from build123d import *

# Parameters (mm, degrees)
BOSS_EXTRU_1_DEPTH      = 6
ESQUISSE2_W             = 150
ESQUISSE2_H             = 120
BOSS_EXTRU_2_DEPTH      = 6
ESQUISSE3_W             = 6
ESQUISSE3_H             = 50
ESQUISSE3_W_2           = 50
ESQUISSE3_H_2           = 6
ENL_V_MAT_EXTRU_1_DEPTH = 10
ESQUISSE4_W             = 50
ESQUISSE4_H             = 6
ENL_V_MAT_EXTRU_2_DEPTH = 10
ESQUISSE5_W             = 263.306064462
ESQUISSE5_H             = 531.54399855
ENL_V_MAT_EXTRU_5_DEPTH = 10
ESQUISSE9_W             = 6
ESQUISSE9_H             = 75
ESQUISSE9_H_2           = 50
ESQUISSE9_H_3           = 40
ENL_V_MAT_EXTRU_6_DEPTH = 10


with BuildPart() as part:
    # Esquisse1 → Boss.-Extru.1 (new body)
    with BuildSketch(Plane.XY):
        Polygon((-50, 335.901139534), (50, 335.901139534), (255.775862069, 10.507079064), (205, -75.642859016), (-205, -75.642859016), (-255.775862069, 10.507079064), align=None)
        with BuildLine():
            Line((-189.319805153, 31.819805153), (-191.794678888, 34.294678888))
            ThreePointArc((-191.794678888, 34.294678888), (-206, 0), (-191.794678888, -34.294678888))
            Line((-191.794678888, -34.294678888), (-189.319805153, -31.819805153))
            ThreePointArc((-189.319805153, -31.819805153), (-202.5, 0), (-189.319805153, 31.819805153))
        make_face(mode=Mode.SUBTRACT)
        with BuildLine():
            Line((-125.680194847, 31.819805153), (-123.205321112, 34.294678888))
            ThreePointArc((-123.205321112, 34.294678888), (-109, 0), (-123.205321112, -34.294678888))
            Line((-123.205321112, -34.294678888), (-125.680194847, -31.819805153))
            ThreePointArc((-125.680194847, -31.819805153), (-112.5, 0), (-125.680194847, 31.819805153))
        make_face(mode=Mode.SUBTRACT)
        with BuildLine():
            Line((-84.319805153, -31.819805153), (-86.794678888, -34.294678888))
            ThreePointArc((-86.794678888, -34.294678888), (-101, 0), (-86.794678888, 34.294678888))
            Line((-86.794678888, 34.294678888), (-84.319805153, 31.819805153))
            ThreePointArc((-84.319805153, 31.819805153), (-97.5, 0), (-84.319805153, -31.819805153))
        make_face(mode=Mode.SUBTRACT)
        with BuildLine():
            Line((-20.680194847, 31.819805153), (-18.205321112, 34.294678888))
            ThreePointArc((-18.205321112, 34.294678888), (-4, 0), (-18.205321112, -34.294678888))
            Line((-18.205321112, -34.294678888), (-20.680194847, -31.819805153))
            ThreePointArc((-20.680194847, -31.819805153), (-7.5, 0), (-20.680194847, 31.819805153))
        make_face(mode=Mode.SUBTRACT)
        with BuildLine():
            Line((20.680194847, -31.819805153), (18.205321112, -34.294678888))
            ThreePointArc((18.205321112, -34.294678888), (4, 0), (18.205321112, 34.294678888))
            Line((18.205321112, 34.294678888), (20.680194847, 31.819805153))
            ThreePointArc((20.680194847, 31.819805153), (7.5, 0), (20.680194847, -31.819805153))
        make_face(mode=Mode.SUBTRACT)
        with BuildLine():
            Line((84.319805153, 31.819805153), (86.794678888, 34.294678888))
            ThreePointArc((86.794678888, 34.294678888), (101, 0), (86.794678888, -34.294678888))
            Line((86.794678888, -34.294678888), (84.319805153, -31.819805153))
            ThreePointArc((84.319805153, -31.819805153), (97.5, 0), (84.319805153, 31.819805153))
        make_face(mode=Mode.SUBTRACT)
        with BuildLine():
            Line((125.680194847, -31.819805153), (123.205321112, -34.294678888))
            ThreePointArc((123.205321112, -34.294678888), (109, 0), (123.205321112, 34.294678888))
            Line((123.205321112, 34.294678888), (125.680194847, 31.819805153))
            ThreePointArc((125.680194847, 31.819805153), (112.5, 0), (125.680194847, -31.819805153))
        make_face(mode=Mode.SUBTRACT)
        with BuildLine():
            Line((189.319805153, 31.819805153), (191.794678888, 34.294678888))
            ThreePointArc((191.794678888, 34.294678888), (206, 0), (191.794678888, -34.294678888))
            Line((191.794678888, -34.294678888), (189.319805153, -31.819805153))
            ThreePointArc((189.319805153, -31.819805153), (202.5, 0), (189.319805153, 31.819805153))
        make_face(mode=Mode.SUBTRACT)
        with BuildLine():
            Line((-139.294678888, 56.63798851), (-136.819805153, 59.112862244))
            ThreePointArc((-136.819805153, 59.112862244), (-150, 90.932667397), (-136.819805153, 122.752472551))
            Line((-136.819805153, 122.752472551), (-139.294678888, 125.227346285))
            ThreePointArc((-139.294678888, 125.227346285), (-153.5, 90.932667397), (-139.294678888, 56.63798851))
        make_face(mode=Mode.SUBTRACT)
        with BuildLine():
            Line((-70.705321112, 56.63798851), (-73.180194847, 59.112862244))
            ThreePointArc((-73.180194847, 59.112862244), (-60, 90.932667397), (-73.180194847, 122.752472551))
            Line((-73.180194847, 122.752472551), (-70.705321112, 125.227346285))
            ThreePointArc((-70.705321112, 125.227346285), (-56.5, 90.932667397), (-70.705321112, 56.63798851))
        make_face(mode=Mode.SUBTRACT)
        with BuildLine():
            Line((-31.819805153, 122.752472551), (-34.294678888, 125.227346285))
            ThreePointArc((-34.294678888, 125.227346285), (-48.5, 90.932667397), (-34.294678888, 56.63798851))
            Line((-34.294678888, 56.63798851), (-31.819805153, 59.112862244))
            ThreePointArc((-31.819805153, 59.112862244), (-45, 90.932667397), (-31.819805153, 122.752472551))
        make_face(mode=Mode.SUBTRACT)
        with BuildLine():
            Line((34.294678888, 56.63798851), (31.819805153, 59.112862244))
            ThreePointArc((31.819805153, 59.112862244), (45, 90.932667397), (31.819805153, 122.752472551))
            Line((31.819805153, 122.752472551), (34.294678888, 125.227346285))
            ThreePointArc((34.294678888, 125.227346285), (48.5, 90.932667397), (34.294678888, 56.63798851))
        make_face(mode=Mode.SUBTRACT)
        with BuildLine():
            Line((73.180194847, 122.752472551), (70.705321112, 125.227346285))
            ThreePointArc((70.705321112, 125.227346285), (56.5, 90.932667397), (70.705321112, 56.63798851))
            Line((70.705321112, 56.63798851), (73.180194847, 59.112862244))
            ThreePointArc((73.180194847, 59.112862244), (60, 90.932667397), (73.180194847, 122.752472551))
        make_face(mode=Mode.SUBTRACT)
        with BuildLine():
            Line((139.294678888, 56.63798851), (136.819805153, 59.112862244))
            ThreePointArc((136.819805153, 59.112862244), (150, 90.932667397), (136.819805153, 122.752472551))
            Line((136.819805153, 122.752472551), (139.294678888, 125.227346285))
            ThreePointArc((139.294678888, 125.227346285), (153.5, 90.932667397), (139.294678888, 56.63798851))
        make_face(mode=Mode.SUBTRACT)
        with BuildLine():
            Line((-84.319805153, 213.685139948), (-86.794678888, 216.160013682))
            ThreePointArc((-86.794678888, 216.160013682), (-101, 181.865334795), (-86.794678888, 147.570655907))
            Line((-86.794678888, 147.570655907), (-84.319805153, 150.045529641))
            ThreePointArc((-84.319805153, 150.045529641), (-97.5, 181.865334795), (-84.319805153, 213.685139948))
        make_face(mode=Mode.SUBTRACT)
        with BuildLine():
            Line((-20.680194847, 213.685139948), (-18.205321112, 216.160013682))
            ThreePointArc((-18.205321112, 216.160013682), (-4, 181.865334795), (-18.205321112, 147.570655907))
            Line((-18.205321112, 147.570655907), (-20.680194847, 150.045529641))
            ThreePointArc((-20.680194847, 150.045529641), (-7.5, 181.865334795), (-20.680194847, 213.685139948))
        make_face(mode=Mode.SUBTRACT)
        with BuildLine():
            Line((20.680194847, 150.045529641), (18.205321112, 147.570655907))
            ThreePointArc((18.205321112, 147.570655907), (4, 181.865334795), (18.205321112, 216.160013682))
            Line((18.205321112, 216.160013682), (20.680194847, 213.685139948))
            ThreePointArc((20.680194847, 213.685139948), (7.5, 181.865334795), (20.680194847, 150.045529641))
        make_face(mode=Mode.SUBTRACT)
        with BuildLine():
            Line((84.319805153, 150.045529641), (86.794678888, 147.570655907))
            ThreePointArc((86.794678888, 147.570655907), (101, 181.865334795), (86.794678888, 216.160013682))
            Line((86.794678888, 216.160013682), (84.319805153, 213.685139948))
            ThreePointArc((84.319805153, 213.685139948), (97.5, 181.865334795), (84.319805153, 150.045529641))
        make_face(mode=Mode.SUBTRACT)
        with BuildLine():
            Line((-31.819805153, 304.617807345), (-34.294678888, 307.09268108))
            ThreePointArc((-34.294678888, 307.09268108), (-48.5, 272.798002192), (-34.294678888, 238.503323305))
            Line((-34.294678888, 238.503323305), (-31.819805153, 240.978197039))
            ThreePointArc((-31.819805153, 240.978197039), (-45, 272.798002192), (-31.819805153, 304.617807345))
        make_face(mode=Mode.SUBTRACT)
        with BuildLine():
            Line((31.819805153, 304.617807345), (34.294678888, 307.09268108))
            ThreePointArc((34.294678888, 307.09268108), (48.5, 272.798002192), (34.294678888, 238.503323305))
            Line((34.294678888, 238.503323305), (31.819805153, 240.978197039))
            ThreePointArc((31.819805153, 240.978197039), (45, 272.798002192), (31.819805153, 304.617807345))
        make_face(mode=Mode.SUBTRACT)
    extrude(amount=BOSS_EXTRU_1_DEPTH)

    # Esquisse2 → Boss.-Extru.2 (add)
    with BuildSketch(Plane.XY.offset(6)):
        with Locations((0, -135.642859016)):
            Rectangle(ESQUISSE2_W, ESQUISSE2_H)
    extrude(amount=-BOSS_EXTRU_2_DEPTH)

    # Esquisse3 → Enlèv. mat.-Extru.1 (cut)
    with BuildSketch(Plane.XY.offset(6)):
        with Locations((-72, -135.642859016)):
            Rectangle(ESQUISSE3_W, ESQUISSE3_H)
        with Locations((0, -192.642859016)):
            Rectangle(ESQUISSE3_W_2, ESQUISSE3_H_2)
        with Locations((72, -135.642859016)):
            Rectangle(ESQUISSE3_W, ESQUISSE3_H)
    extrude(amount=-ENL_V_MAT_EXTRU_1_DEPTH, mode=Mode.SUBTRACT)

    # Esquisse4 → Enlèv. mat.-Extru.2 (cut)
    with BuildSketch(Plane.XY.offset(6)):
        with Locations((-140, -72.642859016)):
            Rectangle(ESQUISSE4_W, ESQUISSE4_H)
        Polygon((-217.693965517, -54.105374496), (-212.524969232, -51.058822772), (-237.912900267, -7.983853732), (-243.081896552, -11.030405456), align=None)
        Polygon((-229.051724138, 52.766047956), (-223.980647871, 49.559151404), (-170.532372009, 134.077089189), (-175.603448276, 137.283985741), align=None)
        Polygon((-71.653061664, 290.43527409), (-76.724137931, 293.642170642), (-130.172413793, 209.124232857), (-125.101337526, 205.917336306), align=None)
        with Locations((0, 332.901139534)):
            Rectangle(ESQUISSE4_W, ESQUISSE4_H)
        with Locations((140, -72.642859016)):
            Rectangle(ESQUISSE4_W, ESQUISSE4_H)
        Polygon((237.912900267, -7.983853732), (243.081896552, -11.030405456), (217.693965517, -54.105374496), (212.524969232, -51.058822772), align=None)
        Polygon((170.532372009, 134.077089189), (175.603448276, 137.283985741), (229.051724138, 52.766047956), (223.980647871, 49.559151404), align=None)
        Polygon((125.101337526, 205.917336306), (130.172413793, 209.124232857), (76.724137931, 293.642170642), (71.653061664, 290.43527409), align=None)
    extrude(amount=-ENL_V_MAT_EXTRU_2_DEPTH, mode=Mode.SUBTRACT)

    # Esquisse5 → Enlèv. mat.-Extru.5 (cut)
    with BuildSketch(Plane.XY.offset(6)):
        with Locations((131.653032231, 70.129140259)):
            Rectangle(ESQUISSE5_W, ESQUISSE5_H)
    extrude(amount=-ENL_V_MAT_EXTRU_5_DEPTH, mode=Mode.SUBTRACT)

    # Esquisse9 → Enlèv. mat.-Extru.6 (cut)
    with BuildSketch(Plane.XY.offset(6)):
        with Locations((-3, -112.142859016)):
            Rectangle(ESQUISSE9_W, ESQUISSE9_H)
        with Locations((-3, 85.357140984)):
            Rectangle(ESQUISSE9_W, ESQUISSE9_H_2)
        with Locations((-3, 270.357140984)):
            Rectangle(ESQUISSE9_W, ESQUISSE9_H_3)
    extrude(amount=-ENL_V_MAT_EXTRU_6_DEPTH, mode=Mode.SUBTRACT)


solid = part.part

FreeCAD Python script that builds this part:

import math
import FreeCAD as App
import Part
import Sketcher
Q = App.Units.Quantity


def add_polygon(sketch, points):
    """Adds a closed chain of lines whose ends are joined by coincident constraints."""
    first, n = sketch.GeometryCount, len(points)
    for a, b in zip(points, points[1:] + points[:1]):
        sketch.addGeometry(Part.LineSegment(App.Vector(*a, 0), App.Vector(*b, 0)), False)
    for i in range(n):
        sketch.addConstraint(Sketcher.Constraint("Coincident", first + i, 2, first + (i + 1) % n, 1))

doc = App.newDocument("Part")
params = doc.addObject("Spreadsheet::Sheet", "Params")
for row, (alias, value) in enumerate([
    ("sketch1_radius", "45 mm"),
    ("sketch1_radius2", "48.5 mm"),
    ("sketch1_width", "100 mm"),
    ("sketch1_width2", "410 mm"),
    ("sketch1_length", "385 mm"),
    ("pad1_length", "6 mm"),
    ("sketch2_width", "150 mm"),
    ("sketch2_height", "120 mm"),
    ("pad2_length", "6 mm"),
    ("sketch3_width", "6 mm"),
    ("sketch3_width2", "50 mm"),
    ("pocket1_length", "10 mm"),
    ("sketch4_width", "50 mm"),
    ("sketch4_height", "6 mm"),
    ("sketch4_length", "6 mm"),
    ("sketch4_length2", "50 mm"),
    ("sketch4_length3", "100 mm"),
    ("pocket2_length", "10 mm"),
    ("pocket3_length", "10 mm"),
    ("sketch6_width", "6 mm"),
    ("sketch6_height", "75 mm"),
    ("sketch6_height2", "50 mm"),
    ("sketch6_height3", "40 mm"),
    ("pocket4_length", "10 mm"),
], start=1):
    params.set(f"A{row}", alias)
    params.set(f"B{row}", "=" + value)
    params.setAlias(f"B{row}", alias)

body = doc.addObject("PartDesign::Body", "Body")

sketch1 = body.newObject("Sketcher::SketchObject", "Sketch")
sketch1.AttachmentSupport = (doc.getObject("XY_Plane"), [""])
sketch1.MapMode = "FlatFace"
add_polygon(sketch1, [(50, 335.90114), (-50, 335.90114), (-255.775862, 10.507079), (-205, -75.642859), (205, -75.642859), (255.775862, 10.507079)])
sketch1.addGeometry(Part.LineSegment(App.Vector(189.319805, 31.819805, 0), App.Vector(191.794679, 34.294679, 0)), False)
sketch1.addGeometry(Part.ArcOfCircle(Part.Circle(App.Vector(157.5, 0, 0), App.Vector(0, 0, 1), 48.5), math.radians(-45), math.radians(45)), False)
sketch1.addGeometry(Part.LineSegment(App.Vector(191.794679, -34.294679, 0), App.Vector(189.319805, -31.819805, 0)), False)
sketch1.addGeometry(Part.ArcOfCircle(Part.Circle(App.Vector(157.5, 0, 0), App.Vector(0, 0, 1), 45), math.radians(-45), math.radians(45)), False)
sketch1.addGeometry(Part.LineSegment(App.Vector(125.680195, -31.819805, 0), App.Vector(123.205321, -34.294679, 0)), False)
sketch1.addGeometry(Part.ArcOfCircle(Part.Circle(App.Vector(157.5, 0, 0), App.Vector(0, 0, 1), 48.5), math.radians(135), math.radians(225)), False)
sketch1.addGeometry(Part.LineSegment(App.Vector(123.205321, 34.294679, 0), App.Vector(125.680195, 31.819805, 0)), False)
sketch1.addGeometry(Part.ArcOfCircle(Part.Circle(App.Vector(157.5, 0, 0), App.Vector(0, 0, 1), 45), math.radians(135), math.radians(225)), False)
sketch1.addGeometry(Part.LineSegment(App.Vector(84.319805, 31.819805, 0), App.Vector(86.794679, 34.294679, 0)), False)
sketch1.addGeometry(Part.ArcOfCircle(Part.Circle(App.Vector(52.5, 0, 0), App.Vector(0, 0, 1), 48.5), math.radians(-45), math.radians(45)), False)
sketch1.addGeometry(Part.LineSegment(App.Vector(86.794679, -34.294679, 0), App.Vector(84.319805, -31.819805, 0)), False)
sketch1.addGeometry(Part.ArcOfCircle(Part.Circle(App.Vector(52.5, 0, 0), App.Vector(0, 0, 1), 45), math.radians(-45), math.radians(45)), False)
sketch1.addGeometry(Part.LineSegment(App.Vector(20.680195, -31.819805, 0), App.Vector(18.205321, -34.294679, 0)), False)
sketch1.addGeometry(Part.ArcOfCircle(Part.Circle(App.Vector(52.5, 0, 0), App.Vector(0, 0, 1), 48.5), math.radians(135), math.radians(225)), False)
sketch1.addGeometry(Part.LineSegment(App.Vector(18.205321, 34.294679, 0), App.Vector(20.680195, 31.819805, 0)), False)
sketch1.addGeometry(Part.ArcOfCircle(Part.Circle(App.Vector(52.5, 0, 0), App.Vector(0, 0, 1), 45), math.radians(135), math.radians(225)), False)
sketch1.addGeometry(Part.LineSegment(App.Vector(139.294679, 56.637989, 0), App.Vector(136.819805, 59.112862, 0)), False)
sketch1.addGeometry(Part.ArcOfCircle(Part.Circle(App.Vector(105, 90.932667, 0), App.Vector(0, 0, 1), 45), math.radians(-45), math.radians(45)), False)
sketch1.addGeometry(Part.LineSegment(App.Vector(136.819805, 122.752473, 0), App.Vector(139.294679, 125.227346, 0)), False)
sketch1.addGeometry(Part.ArcOfCircle(Part.Circle(App.Vector(105, 90.932667, 0), App.Vector(0, 0, 1), 48.5), math.radians(-45), math.radians(45)), False)
sketch1.addGeometry(Part.ArcOfCircle(Part.Circle(App.Vector(105, 90.932667, 0), App.Vector(0, 0, 1), 45), math.radians(135), math.radians(225)), False)
sketch1.addGeometry(Part.LineSegment(App.Vector(73.180195, 59.112862, 0), App.Vector(70.705321, 56.637989, 0)), False)
sketch1.addGeometry(Part.ArcOfCircle(Part.Circle(App.Vector(105, 90.932667, 0), App.Vector(0, 0, 1), 48.5), math.radians(135), math.radians(225)), False)
sketch1.addGeometry(Part.LineSegment(App.Vector(70.705321, 125.227346, 0), App.Vector(73.180195, 122.752473, 0)), False)
sketch1.addGeometry(Part.LineSegment(App.Vector(34.294679, 56.637989, 0), App.Vector(31.819805, 59.112862, 0)), False)
sketch1.addGeometry(Part.ArcOfCircle(Part.Circle(App.Vector(0, 90.932667, 0), App.Vector(0, 0, 1), 45), math.radians(-45), math.radians(45)), False)
sketch1.addGeometry(Part.LineSegment(App.Vector(31.819805, 122.752473, 0), App.Vector(34.294679, 125.227346, 0)), False)
sketch1.addGeometry(Part.ArcOfCircle(Part.Circle(App.Vector(0, 90.932667, 0), App.Vector(0, 0, 1), 48.5), math.radians(-45), math.radians(45)), False)
sketch1.addGeometry(Part.LineSegment(App.Vector(-20.680195, 31.819805, 0), App.Vector(-18.205321, 34.294679, 0)), False)
sketch1.addGeometry(Part.ArcOfCircle(Part.Circle(App.Vector(-52.5, 0, 0), App.Vector(0, 0, 1), 48.5), math.radians(-45), math.radians(45)), False)
sketch1.addGeometry(Part.LineSegment(App.Vector(-18.205321, -34.294679, 0), App.Vector(-20.680195, -31.819805, 0)), False)
sketch1.addGeometry(Part.ArcOfCircle(Part.Circle(App.Vector(-52.5, 0, 0), App.Vector(0, 0, 1), 45), math.radians(-45), math.radians(45)), False)
sketch1.addGeometry(Part.LineSegment(App.Vector(-84.319805, -31.819805, 0), App.Vector(-86.794679, -34.294679, 0)), False)
sketch1.addGeometry(Part.ArcOfCircle(Part.Circle(App.Vector(-52.5, 0, 0), App.Vector(0, 0, 1), 48.5), math.radians(135), math.radians(225)), False)
sketch1.addGeometry(Part.LineSegment(App.Vector(-86.794679, 34.294679, 0), App.Vector(-84.319805, 31.819805, 0)), False)
sketch1.addGeometry(Part.ArcOfCircle(Part.Circle(App.Vector(-52.5, 0, 0), App.Vector(0, 0, 1), 45), math.radians(135), math.radians(225)), False)
sketch1.addGeometry(Part.LineSegment(App.Vector(-125.680195, 31.819805, 0), App.Vector(-123.205321, 34.294679, 0)), False)
sketch1.addGeometry(Part.ArcOfCircle(Part.Circle(App.Vector(-157.5, 0, 0), App.Vector(0, 0, 1), 48.5), math.radians(-45), math.radians(45)), False)
sketch1.addGeometry(Part.LineSegment(App.Vector(-123.205321, -34.294679, 0), App.Vector(-125.680195, -31.819805, 0)), False)
sketch1.addGeometry(Part.ArcOfCircle(Part.Circle(App.Vector(-157.5, 0, 0), App.Vector(0, 0, 1), 45), math.radians(-45), math.radians(45)), False)
sketch1.addGeometry(Part.ArcOfCircle(Part.Circle(App.Vector(-157.5, 0, 0), App.Vector(0, 0, 1), 45), math.radians(135), math.radians(225)), False)
sketch1.addGeometry(Part.LineSegment(App.Vector(-189.319805, -31.819805, 0), App.Vector(-191.794679, -34.294679, 0)), False)
sketch1.addGeometry(Part.ArcOfCircle(Part.Circle(App.Vector(-157.5, 0, 0), App.Vector(0, 0, 1), 48.5), math.radians(135), math.radians(225)), False)
sketch1.addGeometry(Part.LineSegment(App.Vector(-191.794679, 34.294679, 0), App.Vector(-189.319805, 31.819805, 0)), False)
sketch1.addGeometry(Part.ArcOfCircle(Part.Circle(App.Vector(0, 90.932667, 0), App.Vector(0, 0, 1), 45), math.radians(135), math.radians(225)), False)
sketch1.addGeometry(Part.LineSegment(App.Vector(-31.819805, 59.112862, 0), App.Vector(-34.294679, 56.637989, 0)), False)
sketch1.addGeometry(Part.ArcOfCircle(Part.Circle(App.Vector(0, 90.932667, 0), App.Vector(0, 0, 1), 48.5), math.radians(135), math.radians(225)), False)
sketch1.addGeometry(Part.LineSegment(App.Vector(-34.294679, 125.227346, 0), App.Vector(-31.819805, 122.752473, 0)), False)
sketch1.addGeometry(Part.LineSegment(App.Vector(-70.705321, 56.637989, 0), App.Vector(-73.180195, 59.112862, 0)), False)
sketch1.addGeometry(Part.ArcOfCircle(Part.Circle(App.Vector(-105, 90.932667, 0), App.Vector(0, 0, 1), 45), math.radians(-45), math.radians(45)), False)
sketch1.addGeometry(Part.LineSegment(App.Vector(-73.180195, 122.752473, 0), App.Vector(-70.705321, 125.227346, 0)), False)
sketch1.addGeometry(Part.ArcOfCircle(Part.Circle(App.Vector(-105, 90.932667, 0), App.Vector(0, 0, 1), 48.5), math.radians(-45), math.radians(45)), False)
sketch1.addGeometry(Part.ArcOfCircle(Part.Circle(App.Vector(-105, 90.932667, 0), App.Vector(0, 0, 1), 48.5), math.radians(135), math.radians(225)), False)
sketch1.addGeometry(Part.LineSegment(App.Vector(-139.294679, 125.227346, 0), App.Vector(-136.819805, 122.752473, 0)), False)
sketch1.addGeometry(Part.ArcOfCircle(Part.Circle(App.Vector(-105, 90.932667, 0), App.Vector(0, 0, 1), 45), math.radians(135), math.radians(225)), False)
sketch1.addGeometry(Part.LineSegment(App.Vector(-136.819805, 59.112862, 0), App.Vector(-139.294679, 56.637989, 0)), False)
sketch1.addGeometry(Part.ArcOfCircle(Part.Circle(App.Vector(52.5, 181.865335, 0), App.Vector(0, 0, 1), 45), math.radians(-45), math.radians(45)), False)
sketch1.addGeometry(Part.LineSegment(App.Vector(84.319805, 213.68514, 0), App.Vector(86.794679, 216.160014, 0)), False)
sketch1.addGeometry(Part.ArcOfCircle(Part.Circle(App.Vector(52.5, 181.865335, 0), App.Vector(0, 0, 1), 48.5), math.radians(-45), math.radians(45)), False)
sketch1.addGeometry(Part.LineSegment(App.Vector(86.794679, 147.570656, 0), App.Vector(84.319805, 150.04553, 0)), False)
sketch1.addGeometry(Part.LineSegment(App.Vector(20.680195, 150.04553, 0), App.Vector(18.205321, 147.570656, 0)), False)
sketch1.addGeometry(Part.ArcOfCircle(Part.Circle(App.Vector(52.5, 181.865335, 0), App.Vector(0, 0, 1), 48.5), math.radians(135), math.radians(225)), False)
sketch1.addGeometry(Part.LineSegment(App.Vector(18.205321, 216.160014, 0), App.Vector(20.680195, 213.68514, 0)), False)
sketch1.addGeometry(Part.ArcOfCircle(Part.Circle(App.Vector(52.5, 181.865335, 0), App.Vector(0, 0, 1), 45), math.radians(135), math.radians(225)), False)
sketch1.addGeometry(Part.LineSegment(App.Vector(31.819805, 304.617807, 0), App.Vector(34.294679, 307.092681, 0)), False)
sketch1.addGeometry(Part.ArcOfCircle(Part.Circle(App.Vector(0, 272.798002, 0), App.Vector(0, 0, 1), 48.5), math.radians(-45), math.radians(45)), False)
sketch1.addGeometry(Part.LineSegment(App.Vector(34.294679, 238.503323, 0), App.Vector(31.819805, 240.978197, 0)), False)
sketch1.addGeometry(Part.ArcOfCircle(Part.Circle(App.Vector(0, 272.798002, 0), App.Vector(0, 0, 1), 45), math.radians(-45), math.radians(45)), False)
sketch1.addGeometry(Part.LineSegment(App.Vector(-20.680195, 213.68514, 0), App.Vector(-18.205321, 216.160014, 0)), False)
sketch1.addGeometry(Part.ArcOfCircle(Part.Circle(App.Vector(-52.5, 181.865335, 0), App.Vector(0, 0, 1), 48.5), math.radians(-45), math.radians(45)), False)
sketch1.addGeometry(Part.LineSegment(App.Vector(-18.205321, 147.570656, 0), App.Vector(-20.680195, 150.04553, 0)), False)
sketch1.addGeometry(Part.ArcOfCircle(Part.Circle(App.Vector(-52.5, 181.865335, 0), App.Vector(0, 0, 1), 45), math.radians(-45), math.radians(45)), False)
sketch1.addGeometry(Part.ArcOfCircle(Part.Circle(App.Vector(-52.5, 181.865335, 0), App.Vector(0, 0, 1), 45), math.radians(135), math.radians(225)), False)
sketch1.addGeometry(Part.LineSegment(App.Vector(-84.319805, 150.04553, 0), App.Vector(-86.794679, 147.570656, 0)), False)
sketch1.addGeometry(Part.ArcOfCircle(Part.Circle(App.Vector(-52.5, 181.865335, 0), App.Vector(0, 0, 1), 48.5), math.radians(135), math.radians(225)), False)
sketch1.addGeometry(Part.LineSegment(App.Vector(-86.794679, 216.160014, 0), App.Vector(-84.319805, 213.68514, 0)), False)
sketch1.addGeometry(Part.ArcOfCircle(Part.Circle(App.Vector(0, 272.798002, 0), App.Vector(0, 0, 1), 45), math.radians(135), math.radians(225)), False)
sketch1.addGeometry(Part.LineSegment(App.Vector(-31.819805, 240.978197, 0), App.Vector(-34.294679, 238.503323, 0)), False)
sketch1.addGeometry(Part.ArcOfCircle(Part.Circle(App.Vector(0, 272.798002, 0), App.Vector(0, 0, 1), 48.5), math.radians(135), math.radians(225)), False)
sketch1.addGeometry(Part.LineSegment(App.Vector(-34.294679, 307.092681, 0), App.Vector(-31.819805, 304.617807, 0)), False)
sketch1.addConstraint([
    Sketcher.Constraint("Coincident", 6, 2, 7, 2),
    Sketcher.Constraint("Coincident", 7, 1, 8, 1),
    Sketcher.Constraint("Coincident", 8, 2, 9, 1),
    Sketcher.Constraint("Coincident", 9, 2, 6, 1),
    Sketcher.Constraint("Coincident", 10, 2, 11, 2),
    Sketcher.Constraint("Coincident", 11, 1, 12, 1),
    Sketcher.Constraint("Coincident", 12, 2, 13, 1),
    Sketcher.Constraint("Coincident", 13, 2, 10, 1),
    Sketcher.Constraint("Coincident", 14, 2, 15, 2),
    Sketcher.Constraint("Coincident", 15, 1, 16, 1),
    Sketcher.Constraint("Coincident", 16, 2, 17, 1),
    Sketcher.Constraint("Coincident", 17, 2, 14, 1),
    Sketcher.Constraint("Coincident", 18, 2, 19, 2),
    Sketcher.Constraint("Coincident", 19, 1, 20, 1),
    Sketcher.Constraint("Coincident", 20, 2, 21, 1),
    Sketcher.Constraint("Coincident", 21, 2, 18, 1),
    Sketcher.Constraint("Coincident", 22, 2, 23, 1),
    Sketcher.Constraint("Coincident", 23, 2, 24, 1),
    Sketcher.Constraint("Coincident", 24, 2, 25, 2),
    Sketcher.Constraint("Coincident", 25, 1, 22, 1),
    Sketcher.Constraint("Coincident", 26, 2, 27, 1),
    Sketcher.Constraint("Coincident", 27, 2, 28, 2),
    Sketcher.Constraint("Coincident", 28, 1, 29, 1),
    Sketcher.Constraint("Coincident", 29, 2, 26, 1),
    Sketcher.Constraint("Coincident", 30, 2, 31, 1),
    Sketcher.Constraint("Coincident", 31, 2, 32, 1),
    Sketcher.Constraint("Coincident", 32, 2, 33, 2),
    Sketcher.Constraint("Coincident", 33, 1, 30, 1),
    Sketcher.Constraint("Coincident", 34, 2, 35, 2),
    Sketcher.Constraint("Coincident", 35, 1, 36, 1),
    Sketcher.Constraint("Coincident", 36, 2, 37, 1),
    Sketcher.Constraint("Coincident", 37, 2, 34, 1),
    Sketcher.Constraint("Coincident", 38, 2, 39, 2),
    Sketcher.Constraint("Coincident", 39, 1, 40, 1),
    Sketcher.Constraint("Coincident", 40, 2, 41, 1),
    Sketcher.Constraint("Coincident", 41, 2, 38, 1),
    Sketcher.Constraint("Coincident", 42, 2, 43, 2),
    Sketcher.Constraint("Coincident", 43, 1, 44, 1),
    Sketcher.Constraint("Coincident", 44, 2, 45, 1),
    Sketcher.Constraint("Coincident", 45, 2, 42, 1),
    Sketcher.Constraint("Coincident", 46, 2, 47, 1),
    Sketcher.Constraint("Coincident", 47, 2, 48, 2),
    Sketcher.Constraint("Coincident", 48, 1, 49, 1),
    Sketcher.Constraint("Coincident", 49, 2, 46, 1),
    Sketcher.Constraint("Coincident", 50, 2, 51, 1),
    Sketcher.Constraint("Coincident", 51, 2, 52, 2),
    Sketcher.Constraint("Coincident", 52, 1, 53, 1),
    Sketcher.Constraint("Coincident", 53, 2, 50, 1),
    Sketcher.Constraint("Coincident", 54, 2, 55, 1),
    Sketcher.Constraint("Coincident", 55, 2, 56, 1),
    Sketcher.Constraint("Coincident", 56, 2, 57, 2),
    Sketcher.Constraint("Coincident", 57, 1, 54, 1),
    Sketcher.Constraint("Coincident", 58, 1, 59, 1),
    Sketcher.Constraint("Coincident", 59, 2, 60, 1),
    Sketcher.Constraint("Coincident", 60, 2, 61, 1),
    Sketcher.Constraint("Coincident", 61, 2, 58, 2),
    Sketcher.Constraint("Coincident", 62, 2, 63, 1),
    Sketcher.Constraint("Coincident", 63, 2, 64, 2),
    Sketcher.Constraint("Coincident", 64, 1, 65, 1),
    Sketcher.Constraint("Coincident", 65, 2, 62, 1),
    Sketcher.Constraint("Coincident", 66, 2, 67, 2),
    Sketcher.Constraint("Coincident", 67, 1, 68, 1),
    Sketcher.Constraint("Coincident", 68, 2, 69, 1),
    Sketcher.Constraint("Coincident", 69, 2, 66, 1),
    Sketcher.Constraint("Coincident", 70, 2, 71, 2),
    Sketcher.Constraint("Coincident", 71, 1, 72, 1),
    Sketcher.Constraint("Coincident", 72, 2, 73, 1),
    Sketcher.Constraint("Coincident", 73, 2, 70, 1),
    Sketcher.Constraint("Coincident", 74, 2, 75, 2),
    Sketcher.Constraint("Coincident", 75, 1, 76, 1),
    Sketcher.Constraint("Coincident", 76, 2, 77, 1),
    Sketcher.Constraint("Coincident", 77, 2, 74, 1),
    Sketcher.Constraint("Coincident", 78, 2, 79, 1),
    Sketcher.Constraint("Coincident", 79, 2, 80, 2),
    Sketcher.Constraint("Coincident", 80, 1, 81, 1),
    Sketcher.Constraint("Coincident", 81, 2, 78, 1),
    Sketcher.Constraint("Coincident", 82, 2, 83, 1),
    Sketcher.Constraint("Coincident", 83, 2, 84, 2),
    Sketcher.Constraint("Coincident", 84, 1, 85, 1),
    Sketcher.Constraint("Coincident", 85, 2, 82, 1),
    Sketcher.Constraint("Horizontal", 0),
    Sketcher.Constraint("Horizontal", 3),
    Sketcher.Constraint("Coincident", 9, 3, 7, 3),
    Sketcher.Constraint("Coincident", 11, 3, 7, 3),
    Sketcher.Constraint("Coincident", 13, 3, 7, 3),
    Sketcher.Constraint("Coincident", 17, 3, 15, 3),
    Sketcher.Constraint("Coincident", 19, 3, 15, 3),
    Sketcher.Constraint("Coincident", 21, 3, 15, 3),
    Sketcher.Constraint("Coincident", 25, 3, 23, 3),
    Sketcher.Constraint("Coincident", 26, 3, 23, 3),
    Sketcher.Constraint("Coincident", 28, 3, 23, 3),
    Sketcher.Constraint("Coincident", 33, 3, 31, 3),
    Sketcher.Constraint("Coincident", 37, 3, 35, 3),
    Sketcher.Constraint("Coincident", 39, 3, 35, 3),
    Sketcher.Constraint("Coincident", 41, 3, 35, 3),
    Sketcher.Constraint("Coincident", 45, 3, 43, 3),
    Sketcher.Constraint("Coincident", 46, 3, 43, 3),
    Sketcher.Constraint("Coincident", 48, 3, 43, 3),
    Sketcher.Constraint("Coincident", 50, 3, 31, 3),
    Sketcher.Constraint("Coincident", 52, 3, 31, 3),
    Sketcher.Constraint("Coincident", 57, 3, 55, 3),
    Sketcher.Constraint("Coincident", 58, 3, 55, 3),
    Sketcher.Constraint("Coincident", 60, 3, 55, 3),
    Sketcher.Constraint("Coincident", 64, 3, 62, 3),
    Sketcher.Constraint("Coincident", 67, 3, 62, 3),
    Sketcher.Constraint("Coincident", 69, 3, 62, 3),
    Sketcher.Constraint("Coincident", 73, 3, 71, 3),
    Sketcher.Constraint("Coincident", 77, 3, 75, 3),
    Sketcher.Constraint("Coincident", 78, 3, 75, 3),
    Sketcher.Constraint("Coincident", 80, 3, 75, 3),
    Sketcher.Constraint("Coincident", 82, 3, 71, 3),
    Sketcher.Constraint("Coincident", 84, 3, 71, 3),
    Sketcher.Constraint("Equal", 7, 11),
    Sketcher.Constraint("Equal", 9, 13),
    Sketcher.Constraint("Equal", 11, 15),
    Sketcher.Constraint("Equal", 13, 17),
    Sketcher.Constraint("Equal", 15, 19),
    Sketcher.Constraint("Equal", 17, 21),
    Sketcher.Constraint("Equal", 21, 23),
    Sketcher.Constraint("Equal", 19, 25),
    Sketcher.Constraint("Equal", 23, 26),
    Sketcher.Constraint("Equal", 25, 28),
    Sketcher.Constraint("Equal", 26, 31),
    Sketcher.Constraint("Equal", 28, 33),
    Sketcher.Constraint("Equal", 33, 35),
    Sketcher.Constraint("Equal", 31, 37),
    Sketcher.Constraint("Equal", 35, 39),
    Sketcher.Constraint("Equal", 37, 41),
    Sketcher.Constraint("Equal", 39, 43),
    Sketcher.Constraint("Equal", 41, 45),
    Sketcher.Constraint("Equal", 45, 46),
    Sketcher.Constraint("Equal", 43, 48),
    Sketcher.Constraint("Equal", 46, 50),
    Sketcher.Constraint("Equal", 48, 52),
    Sketcher.Constraint("Equal", 50, 55),
    Sketcher.Constraint("Equal", 52, 57),
    Sketcher.Constraint("Equal", 57, 58),
    Sketcher.Constraint("Equal", 55, 60),
    Sketcher.Constraint("Equal", 60, 62),
    Sketcher.Constraint("Equal", 58, 64),
    Sketcher.Constraint("Equal", 64, 67),
    Sketcher.Constraint("Equal", 62, 69),
    Sketcher.Constraint("Equal", 67, 71),
    Sketcher.Constraint("Equal", 69, 73),
    Sketcher.Constraint("Equal", 71, 75),
    Sketcher.Constraint("Equal", 73, 77),
    Sketcher.Constraint("Equal", 77, 78),
    Sketcher.Constraint("Equal", 75, 80),
    Sketcher.Constraint("Equal", 78, 82),
    Sketcher.Constraint("Equal", 80, 84),
    Sketcher.Constraint("Symmetric", 15, 3, 35, 3, -1, 1),
    Sketcher.Constraint("Symmetric", 7, 3, 43, 3, -1, 1),
    Sketcher.Constraint("Symmetric", 23, 3, 55, 3, -2),
    Sketcher.Constraint("Symmetric", 62, 3, 75, 3, -2),
    Sketcher.Constraint("Symmetric", 1, 2, 4, 2, -2),
    Sketcher.Constraint("Symmetric", 19, 1, 34, 2, -2),
    Sketcher.Constraint("Symmetric", 11, 1, 42, 2, -2),
    Sketcher.Constraint("Symmetric", 30, 2, 50, 2, -2),
    Sketcher.Constraint("Symmetric", 72, 2, 82, 2, -2),
    Sketcher.Constraint("Perpendicular", 6, 8),
    Sketcher.Constraint("Perpendicular", 8, 10),
    Sketcher.Constraint("Perpendicular", 10, 12),
    Sketcher.Constraint("Perpendicular", 12, 14),
    Sketcher.Constraint("Perpendicular", 14, 16),
    Sketcher.Constraint("Perpendicular", 16, 18),
    Sketcher.Constraint("Perpendicular", 18, 20),
    Sketcher.Constraint("Parallel", 20, 22),
    Sketcher.Constraint("Perpendicular", 22, 24),
    Sketcher.Constraint("Parallel", 24, 27),
    Sketcher.Constraint("Perpendicular", 27, 29),
    Sketcher.Constraint("Parallel", 29, 30),
    Sketcher.Constraint("Perpendicular", 30, 32),
    Sketcher.Constraint("Parallel", 32, 34),
    Sketcher.Constraint("Perpendicular", 34, 36),
    Sketcher.Constraint("Perpendicular", 36, 38),
    Sketcher.Constraint("Perpendicular", 38, 40),
    Sketcher.Constraint("Perpendicular", 40, 42),
    Sketcher.Constraint("Perpendicular", 42, 44),
    Sketcher.Constraint("Perpendicular", 44, 47),
    Sketcher.Constraint("Perpendicular", 47, 49),
    Sketcher.Constraint("Perpendicular", 49, 51),
    Sketcher.Constraint("Perpendicular", 51, 53),
    Sketcher.Constraint("Parallel", 53, 54),
    Sketcher.Constraint("Perpendicular", 54, 56),
    Sketcher.Constraint("Perpendicular", 56, 59),
    Sketcher.Constraint("Perpendicular", 59, 61),
    Sketcher.Constraint("Parallel", 61, 63),
    Sketcher.Constraint("Perpendicular", 63, 65),
    Sketcher.Constraint("Perpendicular", 65, 66),
    Sketcher.Constraint("Perpendicular", 66, 68),
    Sketcher.Constraint("Perpendicular", 68, 70),
    Sketcher.Constraint("Perpendicular", 70, 72),
    Sketcher.Constraint("Perpendicular", 72, 74),
    Sketcher.Constraint("Perpendicular", 74, 76),
    Sketcher.Constraint("Perpendicular", 76, 79),
    Sketcher.Constraint("Perpendicular", 79, 81),
    Sketcher.Constraint("Perpendicular", 81, 83),
    Sketcher.Constraint("Perpendicular", 83, 85),
    Sketcher.Constraint("Horizontal", 28, 3, 31, 3),
    Sketcher.Constraint("Horizontal", 7, 1, 10, 2),
    Sketcher.Constraint("Horizontal", 6, 2, 11, 1),
    Sketcher.Constraint("Horizontal", 9, 2, 12, 2),
    Sketcher.Constraint("Horizontal", 11, 1, 14, 2),
    Sketcher.Constraint("Horizontal", 10, 2, 15, 1),
    Sketcher.Constraint("Horizontal", 15, 1, 18, 2),
    Sketcher.Constraint("Horizontal", 14, 2, 19, 1),
    Sketcher.Constraint("Horizontal", 22, 2, 26, 2),
    Sketcher.Constraint("Horizontal", 24, 2, 28, 1),
    Sketcher.Constraint("Horizontal", 26, 2, 30, 2),
    Sketcher.Constraint("Horizontal", 29, 2, 31, 2),
    Sketcher.Constraint("Horizontal", 18, 2, 35, 1),
    Sketcher.Constraint("Horizontal", 35, 1, 38, 2),
    Sketcher.Constraint("Horizontal", 34, 2, 39, 1),
    Sketcher.Constraint("Horizontal", 38, 2, 43, 1),
    Sketcher.Constraint("Horizontal", 44, 2, 46, 2),
    Sketcher.Constraint("Horizontal", 42, 2, 48, 1),
    Sketcher.Constraint("Horizontal", 32, 2, 52, 1),
    Sketcher.Constraint("Horizontal", 50, 2, 54, 2),
    Sketcher.Constraint("Horizontal", 53, 2, 55, 2),
    Sketcher.Constraint("Horizontal", 56, 2, 58, 1),
    Sketcher.Constraint("Horizontal", 54, 2, 60, 2),
    Sketcher.Constraint("Horizontal", 64, 1, 66, 2),
    Sketcher.Constraint("Horizontal", 63, 2, 67, 1),
    Sketcher.Constraint("Horizontal", 67, 1, 74, 2),
    Sketcher.Constraint("Horizontal", 66, 2, 75, 1),
    Sketcher.Constraint("Horizontal", 76, 2, 78, 2),
    Sketcher.Constraint("Horizontal", 74, 2, 80, 1),
    Sketcher.Constraint("Horizontal", 70, 2, 84, 1),
    Sketcher.Constraint("Vertical", 21, 3, 62, 3),
    Sketcher.Constraint("Vertical", 6, 2, 7, 1),
    Sketcher.Constraint("Vertical", 22, 2, 23, 2),
    Sketcher.Constraint("Vertical", 17, 2, 62, 2),
    Sketcher.Constraint("Vertical", 63, 2, 64, 1),
    Sketcher.Constraint("Vertical", 33, 1, 70, 2),
    Sketcher.Constraint("Vertical", 70, 2, 71, 1),
    Sketcher.Constraint("Equal", 2, 4),
    Sketcher.Constraint("Equal", 1, 5),
    Sketcher.Constraint("Radius", 9, Q("45 mm")),
    Sketcher.Constraint("Radius", 7, Q("48.5 mm")),
    Sketcher.Constraint("DistanceX", 0, 2, 0, 1, Q("100 mm")),
    Sketcher.Constraint("DistanceX", 3, 1, 3, 2, Q("410 mm")),
    Sketcher.Constraint("Distance", 1, Q("385 mm")),
    Sketcher.Constraint("Distance", 2, Q("100 mm")),
    Sketcher.Constraint("DistanceX", -1, 1, 23, 3, Q("105 mm")),
    Sketcher.Constraint("DistanceX", -1, 1, 7, 3, Q("157.5 mm")),
    Sketcher.Constraint("DistanceX", -1, 1, 15, 3, Q("52.5 mm")),
    Sketcher.Constraint("DistanceY", -1, 1, 0, 2, Q("335.90114 mm")),
    Sketcher.Constraint("DistanceY", -1, 1, 1, 2, Q("10.507079 mm")),
    Sketcher.Constraint("DistanceX", -1, 1, 6, 2, Q("191.794679 mm")),
    Sketcher.Constraint("DistanceX", -1, 1, 24, 2, Q("139.294679 mm")),
    Sketcher.Constraint("DistanceY", -1, 1, 25, 1, Q("56.637989 mm")),
    Sketcher.Constraint("DistanceY", -1, 1, 62, 2, Q("213.68514 mm")),
    Sketcher.Constraint("DistanceY", -1, 1, 70, 2, Q("307.092681 mm")),
])
sketch1.setExpression("Constraints[243]", "Params.sketch1_radius")
sketch1.setExpression("Constraints[244]", "Params.sketch1_radius2")
sketch1.setExpression("Constraints[245]", "Params.sketch1_width")
sketch1.setExpression("Constraints[246]", "Params.sketch1_width2")
sketch1.setExpression("Constraints[247]", "Params.sketch1_length")
pad1 = body.newObject("PartDesign::Pad", "Pad")
pad1.Profile = sketch1
pad1.setExpression("Length", "Params.pad1_length")

sketch2 = body.newObject("Sketcher::SketchObject", "Sketch001")
sketch2.AttachmentSupport = (doc.getObject("XY_Plane"), [""])
sketch2.MapMode = "FlatFace"
sketch2.AttachmentOffset = App.Placement(App.Vector(0, 0, 6), App.Rotation())
add_polygon(sketch2, [(-75, -75.642859), (-75, -195.642859), (75, -195.642859), (75, -75.642859)])
sketch2.addConstraint([
    Sketcher.Constraint("Vertical", 0),
    Sketcher.Constraint("Horizontal", 1),
    Sketcher.Constraint("Vertical", 2),
    Sketcher.Constraint("Horizontal", 3),
    Sketcher.Constraint("DistanceX", 1, 1, 1, 2, Q("150 mm")),
    Sketcher.Constraint("DistanceY", 0, 2, 0, 1, Q("120 mm")),
    Sketcher.Constraint("DistanceX", 0, 2, -1, 1, Q("75 mm")),
    Sketcher.Constraint("DistanceY", 0, 2, -1, 1, Q("195.642859 mm")),
])
sketch2.setExpression("Constraints[8]", "Params.sketch2_width")
sketch2.setExpression("Constraints[9]", "Params.sketch2_height")
pad2 = body.newObject("PartDesign::Pad", "Pad001")
pad2.Profile = sketch2
pad2.setExpression("Length", "Params.pad2_length")
pad2.Reversed = True

sketch3 = body.newObject("Sketcher::SketchObject", "Sketch002")
sketch3.AttachmentSupport = (doc.getObject("XY_Plane"), [""])
sketch3.MapMode = "FlatFace"
sketch3.AttachmentOffset = App.Placement(App.Vector(0, 0, 6), App.Rotation())
add_polygon(sketch3, [(-75, -110.642859), (-75, -160.642859), (-69, -160.642859), (-69, -110.642859)])
add_polygon(sketch3, [(-25, -189.642859), (-25, -195.642859), (25, -195.642859), (25, -189.642859)])
add_polygon(sketch3, [(69, -110.642859), (69, -160.642859), (75, -160.642859), (75, -110.642859)])
sketch3.addConstraint([
    Sketcher.Constraint("Vertical", 0),
    Sketcher.Constraint("Horizontal", 1),
    Sketcher.Constraint("Vertical", 2),
    Sketcher.Constraint("Horizontal", 3),
    Sketcher.Constraint("Vertical", 4),
    Sketcher.Constraint("Horizontal", 5),
    Sketcher.Constraint("Vertical", 6),
    Sketcher.Constraint("Horizontal", 7),
    Sketcher.Constraint("Vertical", 8),
    Sketcher.Constraint("Horizontal", 9),
    Sketcher.Constraint("Vertical", 10),
    Sketcher.Constraint("Horizontal", 11),
    Sketcher.Constraint("Symmetric", 1, 2, 8, 2, -2),
    Sketcher.Constraint("Symmetric", 3, 2, 10, 2, -2),
    Sketcher.Constraint("Equal", 7, 0),
    Sketcher.Constraint("Equal", 11, 4),
    Sketcher.Constraint("DistanceX", 1, 1, 1, 2, Q("6 mm")),
    Sketcher.Constraint("DistanceX", 5, 1, 5, 2, Q("50 mm")),
    Sketcher.Constraint("DistanceX", 0, 2, -1, 1, Q("75 mm")),
    Sketcher.Constraint("DistanceX", 4, 2, -1, 1, Q("25 mm")),
    Sketcher.Constraint("DistanceY", 4, 2, 1, 2, Q("35 mm")),
    Sketcher.Constraint("DistanceY", 0, 2, -1, 1, Q("160.642859 mm")),
])
sketch3.setExpression("Constraints[28]", "Params.sketch3_width")
sketch3.setExpression("Constraints[29]", "Params.sketch3_width2")
pocket1 = body.newObject("PartDesign::Pocket", "Pocket")
pocket1.Profile = sketch3
pocket1.setExpression("Length", "Params.pocket1_length")

sketch4 = body.newObject("Sketcher::SketchObject", "Sketch003")
sketch4.AttachmentSupport = (doc.getObject("XY_Plane"), [""])
sketch4.MapMode = "FlatFace"
sketch4.AttachmentOffset = App.Placement(App.Vector(0, 0, 6), App.Rotation())
add_polygon(sketch4, [(-165, -69.642859), (-165, -75.642859), (-115, -75.642859), (-115, -69.642859)])
add_polygon(sketch4, [(-217.693966, -54.105374), (-212.524969, -51.058823), (-237.9129, -7.983854), (-243.081897, -11.030405)])
add_polygon(sketch4, [(-229.051724, 52.766048), (-223.980648, 49.559151), (-170.532372, 134.077089), (-175.603448, 137.283986)])
add_polygon(sketch4, [(-71.653062, 290.435274), (-76.724138, 293.642171), (-130.172414, 209.124233), (-125.101338, 205.917336)])
add_polygon(sketch4, [(-25, 335.90114), (-25, 329.90114), (25, 329.90114), (25, 335.90114)])
add_polygon(sketch4, [(115, -69.642859), (115, -75.642859), (165, -75.642859), (165, -69.642859)])
add_polygon(sketch4, [(243.081897, -11.030405), (237.9129, -7.983854), (212.524969, -51.058823), (217.693966, -54.105374)])
add_polygon(sketch4, [(175.603448, 137.283986), (170.532372, 134.077089), (223.980648, 49.559151), (229.051724, 52.766048)])
add_polygon(sketch4, [(125.101338, 205.917336), (130.172414, 209.124233), (76.724138, 293.642171), (71.653062, 290.435274)])
sketch4.addConstraint([
    Sketcher.Constraint("Vertical", 0),
    Sketcher.Constraint("Horizontal", 1),
    Sketcher.Constraint("Vertical", 2),
    Sketcher.Constraint("Horizontal", 3),
    Sketcher.Constraint("Vertical", 16),
    Sketcher.Constraint("Horizontal", 17),
    Sketcher.Constraint("Vertical", 18),
    Sketcher.Constraint("Horizontal", 19),
    Sketcher.Constraint("Vertical", 20),
    Sketcher.Constraint("Horizontal", 21),
    Sketcher.Constraint("Vertical", 22),
    Sketcher.Constraint("Horizontal", 23),
    Sketcher.Constraint("Symmetric", 1, 2, 20, 2, -2),
    Sketcher.Constraint("Symmetric", 3, 2, 22, 2, -2),
    Sketcher.Constraint("Symmetric", 5, 2, 24, 2, -2),
    Sketcher.Constraint("Symmetric", 4, 2, 25, 2, -2),
    Sketcher.Constraint("Symmetric", 7, 2, 26, 2, -2),
    Sketcher.Constraint("Symmetric", 6, 2, 27, 2, -2),
    Sketcher.Constraint("Symmetric", 9, 2, 28, 2, -2),
    Sketcher.Constraint("Symmetric", 8, 2, 29, 2, -2),
    Sketcher.Constraint("Symmetric", 11, 2, 30, 2, -2),
    Sketcher.Constraint("Symmetric", 10, 2, 31, 2, -2),
    Sketcher.Constraint("Symmetric", 13, 2, 32, 2, -2),
    Sketcher.Constraint("Symmetric", 12, 2, 33, 2, -2),
    Sketcher.Constraint("Symmetric", 15, 2, 34, 2, -2),
    Sketcher.Constraint("Symmetric", 14, 2, 35, 2, -2),
    Sketcher.Constraint("Perpendicular", 4, 5),
    Sketcher.Constraint("Perpendicular", 5, 6),
    Sketcher.Constraint("Perpendicular", 6, 7),
    Sketcher.Constraint("Perpendicular", 8, 9),
    Sketcher.Constraint("Perpendicular", 9, 10),
    Sketcher.Constraint("Perpendicular", 10, 11),
    Sketcher.Constraint("Perpendicular", 11, 12),
    Sketcher.Constraint("Perpendicular", 12, 13),
    Sketcher.Constraint("Perpendicular", 13, 14),
    Sketcher.Constraint("Perpendicular", 14, 15),
    Sketcher.Constraint("Equal", 3, 17),
    Sketcher.Constraint("Equal", 2, 16),
    Sketcher.Constraint("Equal", 6, 8),
    Sketcher.Constraint("Equal", 10, 12),
    Sketcher.Constraint("Equal", 11, 13),
    Sketcher.Constraint("DistanceX", 1, 1, 1, 2, Q("50 mm")),
    Sketcher.Constraint("DistanceY", 0, 2, 0, 1, Q("6 mm")),
    Sketcher.Constraint("Distance", 4, Q("6 mm")),
    Sketcher.Constraint("Distance", 5, Q("50 mm")),
    Sketcher.Constraint("Distance", 9, Q("100 mm")),
    Sketcher.Constraint("DistanceX", 0, 2, -1, 1, Q("165 mm")),
    Sketcher.Constraint("DistanceX", 16, 2, -1, 1, Q("25 mm")),
    Sketcher.Constraint("DistanceX", 5, 2, -1, 1, Q("237.9129 mm")),
    Sketcher.Constraint("DistanceX", 8, 2, 10, 2, Q("48.3772 mm")),
    Sketcher.Constraint("DistanceY", 5, 2, 11, 2, Q("60.749902 mm")),
    Sketcher.Constraint("DistanceY", 0, 2, -1, 1, Q("75.642859 mm")),
    Sketcher.Constraint("DistanceX", 4, 2, -1, 1, Q("212.524969 mm")),
    Sketcher.Constraint("DistanceY", -1, 1, 8, 2, Q("49.559151 mm")),
    Sketcher.Constraint("DistanceX", 10, 2, -1, 1, Q("175.603448 mm")),
    Sketcher.Constraint("DistanceY", -1, 1, 12, 2, Q("293.642171 mm")),
    Sketcher.Constraint("DistanceX", 15, 2, -1, 1, Q("71.653062 mm")),
    Sketcher.Constraint("DistanceY", -1, 1, 16, 2, Q("329.90114 mm")),
])
sketch4.setExpression("Constraints[77]", "Params.sketch4_width")
sketch4.setExpression("Constraints[78]", "Params.sketch4_height")
sketch4.setExpression("Constraints[79]", "Params.sketch4_length")
sketch4.setExpression("Constraints[80]", "Params.sketch4_length2")
sketch4.setExpression("Constraints[81]", "Params.sketch4_length3")
pocket2 = body.newObject("PartDesign::Pocket", "Pocket001")
pocket2.Profile = sketch4
pocket2.setExpression("Length", "Params.pocket2_length")

sketch5 = body.newObject("Sketcher::SketchObject", "Sketch004")
sketch5.AttachmentSupport = (doc.getObject("XY_Plane"), [""])
sketch5.MapMode = "FlatFace"
sketch5.AttachmentOffset = App.Placement(App.Vector(0, 0, 6), App.Rotation())
add_polygon(sketch5, [(0, 335.90114), (0, -195.642859), (263.306064, -195.642859), (263.306064, 335.90114)])
sketch5.addConstraint([
    Sketcher.Constraint("Vertical", 0),
    Sketcher.Constraint("Horizontal", 1),
    Sketcher.Constraint("Vertical", 2),
    Sketcher.Constraint("Horizontal", 3),
    Sketcher.Constraint("PointOnObject", 0, 2, -2),
    Sketcher.Constraint("DistanceY", 0, 2, 0, 1, Q("531.543999 mm")),
    Sketcher.Constraint("DistanceX", 1, 1, 1, 2, Q("263.306064 mm")),
    Sketcher.Constraint("DistanceY", 0, 2, -1, 1, Q("195.642859 mm")),
])
pocket3 = body.newObject("PartDesign::Pocket", "Pocket002")
pocket3.Profile = sketch5
pocket3.setExpression("Length", "Params.pocket3_length")

sketch6 = body.newObject("Sketcher::SketchObject", "Sketch005")
sketch6.AttachmentSupport = (doc.getObject("XY_Plane"), [""])
sketch6.MapMode = "FlatFace"
sketch6.AttachmentOffset = App.Placement(App.Vector(0, 0, 6), App.Rotation())
add_polygon(sketch6, [(-6, -74.642859), (-6, -149.642859), (0, -149.642859), (0, -74.642859)])
add_polygon(sketch6, [(-6, 110.357141), (-6, 60.357141), (0, 60.357141), (0, 110.357141)])
add_polygon(sketch6, [(-6, 290.357141), (-6, 250.357141), (0, 250.357141), (0, 290.357141)])
sketch6.addConstraint([
    Sketcher.Constraint("Vertical", 0),
    Sketcher.Constraint("Horizontal", 1),
    Sketcher.Constraint("Vertical", 2),
    Sketcher.Constraint("Horizontal", 3),
    Sketcher.Constraint("Vertical", 4),
    Sketcher.Constraint("Horizontal", 5),
    Sketcher.Constraint("Vertical", 6),
    Sketcher.Constraint("Horizontal", 7),
    Sketcher.Constraint("Vertical", 8),
    Sketcher.Constraint("Horizontal", 9),
    Sketcher.Constraint("Vertical", 10),
    Sketcher.Constraint("Horizontal", 11),
    Sketcher.Constraint("PointOnObject", 1, 2, -2),
    Sketcher.Constraint("PointOnObject", 5, 2, -2),
    Sketcher.Constraint("PointOnObject", 9, 2, -2),
    Sketcher.Constraint("Vertical", 3, 2, 4, 2),
    Sketcher.Constraint("Vertical", 7, 2, 8, 2),
    Sketcher.Constraint("DistanceX", 1, 1, 1, 2, Q("6 mm")),
    Sketcher.Constraint("DistanceY", 0, 2, 0, 1, Q("75 mm")),
    Sketcher.Constraint("DistanceY", 4, 2, 4, 1, Q("50 mm")),
    Sketcher.Constraint("DistanceY", 8, 2, 8, 1, Q("40 mm")),
    Sketcher.Constraint("DistanceY", 3, 2, 4, 2, Q("135 mm")),
    Sketcher.Constraint("DistanceY", 7, 2, 8, 2, Q("140 mm")),
    Sketcher.Constraint("DistanceY", 0, 2, -1, 1, Q("149.642859 mm")),
])
sketch6.setExpression("Constraints[29]", "Params.sketch6_width")
sketch6.setExpression("Constraints[30]", "Params.sketch6_height")
sketch6.setExpression("Constraints[31]", "Params.sketch6_height2")
sketch6.setExpression("Constraints[32]", "Params.sketch6_height3")
pocket4 = body.newObject("PartDesign::Pocket", "Pocket003")
pocket4.Profile = sketch6
pocket4.setExpression("Length", "Params.pocket4_length")

doc.recompute()
